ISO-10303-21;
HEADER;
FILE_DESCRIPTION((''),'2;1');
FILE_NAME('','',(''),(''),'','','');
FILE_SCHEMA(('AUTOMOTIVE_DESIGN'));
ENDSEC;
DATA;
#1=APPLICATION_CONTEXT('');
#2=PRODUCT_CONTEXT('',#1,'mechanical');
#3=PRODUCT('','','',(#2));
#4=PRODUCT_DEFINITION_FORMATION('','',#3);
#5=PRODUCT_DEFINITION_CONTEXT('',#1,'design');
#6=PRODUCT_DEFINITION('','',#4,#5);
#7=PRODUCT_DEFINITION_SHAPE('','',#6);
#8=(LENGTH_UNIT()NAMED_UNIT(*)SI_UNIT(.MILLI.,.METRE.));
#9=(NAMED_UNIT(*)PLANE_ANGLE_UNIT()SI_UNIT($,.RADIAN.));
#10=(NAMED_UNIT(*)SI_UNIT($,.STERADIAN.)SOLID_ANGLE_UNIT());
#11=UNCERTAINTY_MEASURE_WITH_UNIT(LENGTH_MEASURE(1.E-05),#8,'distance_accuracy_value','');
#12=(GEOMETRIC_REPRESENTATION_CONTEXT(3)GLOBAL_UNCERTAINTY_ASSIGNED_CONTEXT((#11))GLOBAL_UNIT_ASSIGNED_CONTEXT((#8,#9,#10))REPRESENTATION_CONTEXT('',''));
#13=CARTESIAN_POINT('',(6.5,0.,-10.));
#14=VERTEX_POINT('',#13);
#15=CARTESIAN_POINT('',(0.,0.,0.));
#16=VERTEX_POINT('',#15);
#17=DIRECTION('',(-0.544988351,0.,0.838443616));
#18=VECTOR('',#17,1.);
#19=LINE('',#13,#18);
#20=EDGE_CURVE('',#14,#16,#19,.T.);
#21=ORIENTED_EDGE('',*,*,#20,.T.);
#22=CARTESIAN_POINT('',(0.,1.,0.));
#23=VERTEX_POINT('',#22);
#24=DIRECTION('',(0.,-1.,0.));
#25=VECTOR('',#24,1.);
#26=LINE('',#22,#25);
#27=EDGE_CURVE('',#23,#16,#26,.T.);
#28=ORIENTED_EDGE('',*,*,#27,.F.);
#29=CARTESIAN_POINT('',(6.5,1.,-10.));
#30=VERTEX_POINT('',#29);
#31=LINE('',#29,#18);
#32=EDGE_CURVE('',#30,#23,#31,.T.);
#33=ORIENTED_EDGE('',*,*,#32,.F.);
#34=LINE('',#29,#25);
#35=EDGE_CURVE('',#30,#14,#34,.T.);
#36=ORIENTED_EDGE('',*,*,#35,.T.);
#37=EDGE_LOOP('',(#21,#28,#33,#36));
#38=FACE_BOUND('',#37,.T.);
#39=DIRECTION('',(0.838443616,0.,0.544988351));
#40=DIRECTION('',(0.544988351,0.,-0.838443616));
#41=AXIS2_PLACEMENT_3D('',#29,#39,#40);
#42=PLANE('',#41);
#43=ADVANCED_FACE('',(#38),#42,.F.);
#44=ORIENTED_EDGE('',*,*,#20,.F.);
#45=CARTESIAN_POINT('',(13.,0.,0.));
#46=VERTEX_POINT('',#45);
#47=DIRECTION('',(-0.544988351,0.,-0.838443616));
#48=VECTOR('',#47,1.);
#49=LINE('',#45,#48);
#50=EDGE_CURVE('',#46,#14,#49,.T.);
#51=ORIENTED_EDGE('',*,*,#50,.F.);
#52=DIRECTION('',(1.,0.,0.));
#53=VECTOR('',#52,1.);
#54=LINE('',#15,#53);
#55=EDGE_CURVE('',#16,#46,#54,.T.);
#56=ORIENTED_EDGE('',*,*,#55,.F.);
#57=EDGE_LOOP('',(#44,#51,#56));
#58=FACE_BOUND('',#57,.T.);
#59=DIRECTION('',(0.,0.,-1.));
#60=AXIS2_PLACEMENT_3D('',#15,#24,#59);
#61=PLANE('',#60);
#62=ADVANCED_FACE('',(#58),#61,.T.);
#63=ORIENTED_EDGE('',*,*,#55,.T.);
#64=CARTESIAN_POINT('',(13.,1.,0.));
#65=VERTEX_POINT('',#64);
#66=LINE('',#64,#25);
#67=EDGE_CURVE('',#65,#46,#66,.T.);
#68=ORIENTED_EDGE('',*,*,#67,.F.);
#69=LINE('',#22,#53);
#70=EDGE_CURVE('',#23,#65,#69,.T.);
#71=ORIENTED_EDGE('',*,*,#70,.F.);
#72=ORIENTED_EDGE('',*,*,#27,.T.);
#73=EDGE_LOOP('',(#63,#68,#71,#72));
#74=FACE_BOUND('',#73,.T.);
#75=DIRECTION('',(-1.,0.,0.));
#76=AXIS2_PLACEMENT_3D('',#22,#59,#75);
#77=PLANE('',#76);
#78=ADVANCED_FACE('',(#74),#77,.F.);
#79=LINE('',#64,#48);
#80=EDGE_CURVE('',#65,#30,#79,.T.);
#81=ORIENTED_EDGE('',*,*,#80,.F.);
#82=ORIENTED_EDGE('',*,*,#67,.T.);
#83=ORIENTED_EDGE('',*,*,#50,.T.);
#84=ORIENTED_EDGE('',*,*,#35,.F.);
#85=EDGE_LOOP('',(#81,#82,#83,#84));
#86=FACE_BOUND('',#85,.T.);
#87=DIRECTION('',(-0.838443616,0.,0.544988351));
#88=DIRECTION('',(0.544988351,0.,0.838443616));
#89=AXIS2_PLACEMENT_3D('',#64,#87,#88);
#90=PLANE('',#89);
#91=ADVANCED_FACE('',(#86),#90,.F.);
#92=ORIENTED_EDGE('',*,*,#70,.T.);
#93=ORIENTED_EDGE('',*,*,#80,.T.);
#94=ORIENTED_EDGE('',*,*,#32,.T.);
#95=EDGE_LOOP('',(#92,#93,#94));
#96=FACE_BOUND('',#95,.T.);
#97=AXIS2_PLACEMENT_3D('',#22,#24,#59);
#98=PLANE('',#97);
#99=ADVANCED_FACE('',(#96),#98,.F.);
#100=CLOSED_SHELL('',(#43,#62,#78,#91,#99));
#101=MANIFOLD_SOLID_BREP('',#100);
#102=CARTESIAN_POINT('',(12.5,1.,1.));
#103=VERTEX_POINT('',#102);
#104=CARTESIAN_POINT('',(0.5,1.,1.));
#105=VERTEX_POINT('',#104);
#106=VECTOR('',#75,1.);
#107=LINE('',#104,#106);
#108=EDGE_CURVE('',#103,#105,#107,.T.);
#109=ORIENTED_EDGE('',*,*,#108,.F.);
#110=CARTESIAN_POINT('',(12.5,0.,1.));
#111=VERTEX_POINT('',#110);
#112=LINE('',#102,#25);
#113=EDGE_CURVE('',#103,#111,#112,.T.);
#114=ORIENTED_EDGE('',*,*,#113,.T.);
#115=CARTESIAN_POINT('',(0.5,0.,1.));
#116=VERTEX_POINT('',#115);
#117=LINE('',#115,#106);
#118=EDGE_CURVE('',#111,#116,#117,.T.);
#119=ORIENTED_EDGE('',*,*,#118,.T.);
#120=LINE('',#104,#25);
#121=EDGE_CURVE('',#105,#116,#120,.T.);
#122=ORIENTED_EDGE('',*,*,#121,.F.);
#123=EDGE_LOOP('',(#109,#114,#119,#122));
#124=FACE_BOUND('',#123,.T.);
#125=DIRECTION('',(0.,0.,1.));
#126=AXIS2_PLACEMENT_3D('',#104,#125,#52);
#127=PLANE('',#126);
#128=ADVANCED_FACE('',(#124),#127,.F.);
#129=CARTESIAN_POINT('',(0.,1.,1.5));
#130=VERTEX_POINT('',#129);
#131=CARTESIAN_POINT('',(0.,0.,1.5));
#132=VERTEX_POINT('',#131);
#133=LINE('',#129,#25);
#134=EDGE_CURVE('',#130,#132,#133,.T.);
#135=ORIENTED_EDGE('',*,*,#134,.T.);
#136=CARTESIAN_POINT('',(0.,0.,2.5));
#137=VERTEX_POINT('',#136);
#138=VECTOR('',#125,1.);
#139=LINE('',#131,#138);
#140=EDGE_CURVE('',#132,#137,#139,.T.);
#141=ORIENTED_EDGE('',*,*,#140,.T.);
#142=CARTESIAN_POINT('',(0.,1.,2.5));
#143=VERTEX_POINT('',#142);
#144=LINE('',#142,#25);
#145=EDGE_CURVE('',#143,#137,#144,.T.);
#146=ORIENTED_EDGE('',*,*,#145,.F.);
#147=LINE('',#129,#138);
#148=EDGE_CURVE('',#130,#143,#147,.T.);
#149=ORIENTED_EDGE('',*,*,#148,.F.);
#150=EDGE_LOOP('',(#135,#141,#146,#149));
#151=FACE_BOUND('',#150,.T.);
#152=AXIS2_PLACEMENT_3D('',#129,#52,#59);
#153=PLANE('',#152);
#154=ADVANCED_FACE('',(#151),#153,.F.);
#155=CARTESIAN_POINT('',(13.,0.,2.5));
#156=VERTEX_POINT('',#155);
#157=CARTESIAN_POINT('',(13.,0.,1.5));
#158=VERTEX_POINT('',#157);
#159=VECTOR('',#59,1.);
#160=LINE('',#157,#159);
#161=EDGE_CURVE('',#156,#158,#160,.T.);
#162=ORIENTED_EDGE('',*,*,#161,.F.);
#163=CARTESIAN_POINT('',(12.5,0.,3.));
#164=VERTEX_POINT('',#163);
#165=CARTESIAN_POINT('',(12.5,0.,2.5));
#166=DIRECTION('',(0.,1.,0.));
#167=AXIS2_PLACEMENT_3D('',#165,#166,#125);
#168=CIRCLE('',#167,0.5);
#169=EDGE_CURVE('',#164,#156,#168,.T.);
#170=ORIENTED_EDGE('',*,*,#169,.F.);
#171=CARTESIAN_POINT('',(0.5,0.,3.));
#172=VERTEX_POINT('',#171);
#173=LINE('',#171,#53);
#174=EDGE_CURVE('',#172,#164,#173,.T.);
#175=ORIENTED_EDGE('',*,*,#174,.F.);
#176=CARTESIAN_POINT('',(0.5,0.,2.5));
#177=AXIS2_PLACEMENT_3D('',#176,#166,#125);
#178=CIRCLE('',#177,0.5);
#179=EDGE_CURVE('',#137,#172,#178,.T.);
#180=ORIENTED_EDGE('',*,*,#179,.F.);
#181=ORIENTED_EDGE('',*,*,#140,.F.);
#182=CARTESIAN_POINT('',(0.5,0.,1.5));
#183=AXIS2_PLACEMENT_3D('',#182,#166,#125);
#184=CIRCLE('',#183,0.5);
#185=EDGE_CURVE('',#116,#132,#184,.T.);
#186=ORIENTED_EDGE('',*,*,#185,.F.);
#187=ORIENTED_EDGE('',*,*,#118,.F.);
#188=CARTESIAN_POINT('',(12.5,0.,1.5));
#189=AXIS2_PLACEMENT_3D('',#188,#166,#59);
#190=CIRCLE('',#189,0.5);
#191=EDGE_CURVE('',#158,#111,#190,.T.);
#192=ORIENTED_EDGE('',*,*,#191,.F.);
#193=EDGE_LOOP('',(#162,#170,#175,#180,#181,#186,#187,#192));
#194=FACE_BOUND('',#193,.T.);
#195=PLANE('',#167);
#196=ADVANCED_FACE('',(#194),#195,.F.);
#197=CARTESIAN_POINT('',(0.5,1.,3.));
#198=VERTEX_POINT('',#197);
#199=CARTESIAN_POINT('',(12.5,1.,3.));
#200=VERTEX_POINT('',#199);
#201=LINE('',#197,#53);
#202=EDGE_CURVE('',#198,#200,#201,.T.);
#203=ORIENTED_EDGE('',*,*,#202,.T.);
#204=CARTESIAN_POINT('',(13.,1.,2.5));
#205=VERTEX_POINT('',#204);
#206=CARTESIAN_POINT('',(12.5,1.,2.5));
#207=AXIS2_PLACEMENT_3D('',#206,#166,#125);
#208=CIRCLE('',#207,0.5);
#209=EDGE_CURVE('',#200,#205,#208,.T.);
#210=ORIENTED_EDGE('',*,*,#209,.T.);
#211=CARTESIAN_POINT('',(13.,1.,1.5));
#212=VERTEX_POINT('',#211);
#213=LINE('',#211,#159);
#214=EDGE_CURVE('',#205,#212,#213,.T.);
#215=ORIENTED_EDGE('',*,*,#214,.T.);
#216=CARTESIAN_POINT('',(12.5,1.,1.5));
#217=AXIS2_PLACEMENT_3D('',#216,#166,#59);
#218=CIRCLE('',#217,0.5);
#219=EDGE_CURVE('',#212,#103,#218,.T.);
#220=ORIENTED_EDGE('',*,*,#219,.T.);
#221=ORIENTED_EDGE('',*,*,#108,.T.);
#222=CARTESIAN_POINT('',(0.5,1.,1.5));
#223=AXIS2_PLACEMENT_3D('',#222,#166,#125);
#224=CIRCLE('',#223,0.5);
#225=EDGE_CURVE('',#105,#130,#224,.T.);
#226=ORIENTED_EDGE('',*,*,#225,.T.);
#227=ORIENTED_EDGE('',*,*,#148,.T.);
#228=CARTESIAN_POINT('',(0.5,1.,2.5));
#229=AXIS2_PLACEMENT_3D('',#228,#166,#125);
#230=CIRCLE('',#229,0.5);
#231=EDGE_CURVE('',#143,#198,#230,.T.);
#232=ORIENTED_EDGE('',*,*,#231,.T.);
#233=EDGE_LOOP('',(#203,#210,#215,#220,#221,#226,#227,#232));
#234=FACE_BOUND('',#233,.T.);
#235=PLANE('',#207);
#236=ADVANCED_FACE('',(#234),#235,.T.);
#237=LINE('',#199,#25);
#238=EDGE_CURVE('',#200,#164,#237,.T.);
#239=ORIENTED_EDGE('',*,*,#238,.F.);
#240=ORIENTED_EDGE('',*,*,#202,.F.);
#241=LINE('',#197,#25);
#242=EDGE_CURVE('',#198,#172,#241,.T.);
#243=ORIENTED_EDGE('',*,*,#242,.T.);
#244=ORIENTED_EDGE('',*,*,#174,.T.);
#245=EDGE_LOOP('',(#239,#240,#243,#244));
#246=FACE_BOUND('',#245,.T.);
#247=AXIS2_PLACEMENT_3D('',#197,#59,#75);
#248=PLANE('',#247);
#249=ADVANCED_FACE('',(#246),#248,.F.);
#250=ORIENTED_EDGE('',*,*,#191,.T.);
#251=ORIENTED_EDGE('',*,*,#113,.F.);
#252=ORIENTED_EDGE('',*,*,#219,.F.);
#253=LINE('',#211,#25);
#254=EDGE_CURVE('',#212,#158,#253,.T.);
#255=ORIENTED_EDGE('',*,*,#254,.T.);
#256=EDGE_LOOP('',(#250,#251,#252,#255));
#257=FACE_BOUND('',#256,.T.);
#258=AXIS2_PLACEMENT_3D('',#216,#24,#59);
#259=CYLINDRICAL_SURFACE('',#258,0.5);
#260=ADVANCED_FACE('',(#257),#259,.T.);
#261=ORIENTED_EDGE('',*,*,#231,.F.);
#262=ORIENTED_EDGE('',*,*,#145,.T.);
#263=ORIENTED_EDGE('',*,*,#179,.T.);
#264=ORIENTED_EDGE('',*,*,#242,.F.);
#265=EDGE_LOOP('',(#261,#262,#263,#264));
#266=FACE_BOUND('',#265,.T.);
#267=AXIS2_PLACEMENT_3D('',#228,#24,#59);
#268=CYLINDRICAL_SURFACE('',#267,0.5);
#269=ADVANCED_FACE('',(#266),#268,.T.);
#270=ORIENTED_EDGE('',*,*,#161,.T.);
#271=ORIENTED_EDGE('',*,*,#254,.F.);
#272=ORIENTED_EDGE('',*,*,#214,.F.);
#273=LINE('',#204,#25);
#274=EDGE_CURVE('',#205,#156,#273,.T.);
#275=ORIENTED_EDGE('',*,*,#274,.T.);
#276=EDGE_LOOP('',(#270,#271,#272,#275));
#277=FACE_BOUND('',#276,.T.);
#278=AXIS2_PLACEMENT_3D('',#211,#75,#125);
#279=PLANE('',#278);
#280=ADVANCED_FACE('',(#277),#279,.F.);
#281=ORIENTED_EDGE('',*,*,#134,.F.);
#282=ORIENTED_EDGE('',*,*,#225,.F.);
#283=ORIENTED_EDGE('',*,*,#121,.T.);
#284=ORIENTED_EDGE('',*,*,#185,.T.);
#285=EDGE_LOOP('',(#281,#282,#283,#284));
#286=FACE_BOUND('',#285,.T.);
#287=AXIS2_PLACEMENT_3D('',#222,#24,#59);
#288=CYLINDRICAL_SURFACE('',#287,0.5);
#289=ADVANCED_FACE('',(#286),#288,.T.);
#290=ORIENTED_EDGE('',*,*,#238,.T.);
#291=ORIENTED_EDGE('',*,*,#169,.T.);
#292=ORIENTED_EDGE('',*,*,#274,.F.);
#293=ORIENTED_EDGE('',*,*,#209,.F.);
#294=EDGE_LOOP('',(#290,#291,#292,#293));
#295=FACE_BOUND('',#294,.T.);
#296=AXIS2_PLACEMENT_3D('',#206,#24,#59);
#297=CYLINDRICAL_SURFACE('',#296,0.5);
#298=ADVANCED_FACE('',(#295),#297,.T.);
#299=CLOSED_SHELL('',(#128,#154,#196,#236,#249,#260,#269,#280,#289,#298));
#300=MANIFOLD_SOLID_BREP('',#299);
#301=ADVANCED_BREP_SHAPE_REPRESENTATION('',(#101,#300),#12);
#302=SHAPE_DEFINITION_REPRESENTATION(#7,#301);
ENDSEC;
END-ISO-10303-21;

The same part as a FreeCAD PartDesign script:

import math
import FreeCAD as App
import Part
import Sketcher
from FreeCAD import Vector

doc = App.newDocument("Part")
params = doc.addObject("Spreadsheet::Sheet", "Params")
for row, (alias, value) in enumerate([
    ("sketch1_width", "13 mm"),
    ("pad1_length", "1 mm"),
    ("sketch2_radius", "0.5 mm"),
    ("sketch2_width", "12 mm"),
    ("sketch2_height", "1 mm"),
    ("pad2_length", "1 mm"),
], start=1):
    params.set(f"A{row}", alias)
    params.set(f"B{row}", "=" + value)
    params.setAlias(f"B{row}", alias)

body = doc.addObject("PartDesign::Body", "Body")

# Sketch on XZ plane
sketch1 = body.newObject("Sketcher::SketchObject", "Sketch")
sketch1.AttachmentSupport = (doc.getObject("XZ_Plane"), [""])
sketch1.MapMode = "FlatFace"
sketch1.addGeometry(Part.LineSegment(Vector(0, 0, 0), Vector(13, 0, 0)), False)
sketch1.addGeometry(Part.LineSegment(Vector(13, 0, 0), Vector(6.5, -10, 0)), False)
sketch1.addGeometry(Part.LineSegment(Vector(6.5, -10, 0), Vector(0, 0, 0)), False)
sketch1.addConstraint(Sketcher.Constraint("Coincident", 0, 2, 1, 1))
sketch1.addConstraint(Sketcher.Constraint("Coincident", 1, 2, 2, 1))
sketch1.addConstraint(Sketcher.Constraint("Coincident", 2, 2, 0, 1))
sketch1.addConstraint(Sketcher.Constraint("Horizontal", 0))
sketch1.addConstraint(Sketcher.Constraint("Coincident", 2, 2, -1, 1))
sketch1.addConstraint(Sketcher.Constraint("Equal", 1, 2))
sketch1.addConstraint(Sketcher.Constraint("DistanceX", 0, 1, 0, 2, 13.0))
sketch1.addConstraint(Sketcher.Constraint("DistanceY", 1, 2, -1, 1, 10.0))
sketch1.setExpression("Constraints[6]", "Params.sketch1_width")
pad1 = body.newObject("PartDesign::Pad", "Pad")
pad1.Profile = sketch1
pad1.setExpression("Length", "Params.pad1_length")
pad1.Reversed = True
body2 = doc.addObject("PartDesign::Body", "Body001")

# Sketch on XZ plane
sketch2 = body2.newObject("Sketcher::SketchObject", "Sketch001")
sketch2.AttachmentSupport = (doc.getObject("XZ_Plane001"), [""])
sketch2.MapMode = "FlatFace"
sketch2.addGeometry(Part.LineSegment(Vector(12.5, 1, 0), Vector(0.5, 1, 0)), False)
sketch2.addGeometry(Part.ArcOfCircle(Part.Circle(Vector(0.5, 1.5, 0), Vector(0, 0, 1), 0.5), math.radians(180), math.radians(270)), False)
sketch2.addGeometry(Part.LineSegment(Vector(0, 1.5, 0), Vector(0, 2.5, 0)), False)
sketch2.addGeometry(Part.ArcOfCircle(Part.Circle(Vector(0.5, 2.5, 0), Vector(0, 0, 1), 0.5), math.radians(90), math.radians(180)), False)
sketch2.addGeometry(Part.LineSegment(Vector(0.5, 3, 0), Vector(12.5, 3, 0)), False)
sketch2.addGeometry(Part.ArcOfCircle(Part.Circle(Vector(12.5, 2.5, 0), Vector(0, 0, 1), 0.5), math.radians(0), math.radians(90)), False)
sketch2.addGeometry(Part.LineSegment(Vector(13, 2.5, 0), Vector(13, 1.5, 0)), False)
sketch2.addGeometry(Part.ArcOfCircle(Part.Circle(Vector(12.5, 1.5, 0), Vector(0, 0, 1), 0.5), math.radians(-90), math.radians(0)), False)
sketch2.addConstraint(Sketcher.Constraint("Tangent", 0, 2, 1, 2))
sketch2.addConstraint(Sketcher.Constraint("Tangent", 1, 1, 2, 1))
sketch2.addConstraint(Sketcher.Constraint("Tangent", 2, 2, 3, 2))
sketch2.addConstraint(Sketcher.Constraint("Tangent", 3, 1, 4, 1))
sketch2.addConstraint(Sketcher.Constraint("Tangent", 4, 2, 5, 2))
sketch2.addConstraint(Sketcher.Constraint("Tangent", 5, 1, 6, 1))
sketch2.addConstraint(Sketcher.Constraint("Tangent", 6, 2, 7, 2))
sketch2.addConstraint(Sketcher.Constraint("Tangent", 7, 1, 0, 1))
sketch2.addConstraint(Sketcher.Constraint("Horizontal", 0))
sketch2.addConstraint(Sketcher.Constraint("Vertical", 2))
sketch2.addConstraint(Sketcher.Constraint("Horizontal", 4))
sketch2.addConstraint(Sketcher.Constraint("Vertical", 6))
sketch2.addConstraint(Sketcher.Constraint("Equal", 1, 3))
sketch2.addConstraint(Sketcher.Constraint("Equal", 3, 5))
sketch2.addConstraint(Sketcher.Constraint("Equal", 5, 7))
sketch2.addConstraint(Sketcher.Constraint("PointOnObject", 1, 1, -2))
sketch2.addConstraint(Sketcher.Constraint("Radius", 1, 0.5))
sketch2.addConstraint(Sketcher.Constraint("DistanceX", 0, 2, 0, 1, 12.0))
sketch2.addConstraint(Sketcher.Constraint("DistanceY", 2, 1, 2, 2, 1.0))
sketch2.addConstraint(Sketcher.Constraint("DistanceY", -1, 1, 0, 2, 1.0))
sketch2.setExpression("Constraints[16]", "Params.sketch2_radius")
sketch2.setExpression("Constraints[17]", "Params.sketch2_width")
sketch2.setExpression("Constraints[18]", "Params.sketch2_height")
pad2 = body2.newObject("PartDesign::Pad", "Pad001")
pad2.Profile = sketch2
pad2.setExpression("Length", "Params.pad2_length")
pad2.Reversed = True

doc.recompute()
